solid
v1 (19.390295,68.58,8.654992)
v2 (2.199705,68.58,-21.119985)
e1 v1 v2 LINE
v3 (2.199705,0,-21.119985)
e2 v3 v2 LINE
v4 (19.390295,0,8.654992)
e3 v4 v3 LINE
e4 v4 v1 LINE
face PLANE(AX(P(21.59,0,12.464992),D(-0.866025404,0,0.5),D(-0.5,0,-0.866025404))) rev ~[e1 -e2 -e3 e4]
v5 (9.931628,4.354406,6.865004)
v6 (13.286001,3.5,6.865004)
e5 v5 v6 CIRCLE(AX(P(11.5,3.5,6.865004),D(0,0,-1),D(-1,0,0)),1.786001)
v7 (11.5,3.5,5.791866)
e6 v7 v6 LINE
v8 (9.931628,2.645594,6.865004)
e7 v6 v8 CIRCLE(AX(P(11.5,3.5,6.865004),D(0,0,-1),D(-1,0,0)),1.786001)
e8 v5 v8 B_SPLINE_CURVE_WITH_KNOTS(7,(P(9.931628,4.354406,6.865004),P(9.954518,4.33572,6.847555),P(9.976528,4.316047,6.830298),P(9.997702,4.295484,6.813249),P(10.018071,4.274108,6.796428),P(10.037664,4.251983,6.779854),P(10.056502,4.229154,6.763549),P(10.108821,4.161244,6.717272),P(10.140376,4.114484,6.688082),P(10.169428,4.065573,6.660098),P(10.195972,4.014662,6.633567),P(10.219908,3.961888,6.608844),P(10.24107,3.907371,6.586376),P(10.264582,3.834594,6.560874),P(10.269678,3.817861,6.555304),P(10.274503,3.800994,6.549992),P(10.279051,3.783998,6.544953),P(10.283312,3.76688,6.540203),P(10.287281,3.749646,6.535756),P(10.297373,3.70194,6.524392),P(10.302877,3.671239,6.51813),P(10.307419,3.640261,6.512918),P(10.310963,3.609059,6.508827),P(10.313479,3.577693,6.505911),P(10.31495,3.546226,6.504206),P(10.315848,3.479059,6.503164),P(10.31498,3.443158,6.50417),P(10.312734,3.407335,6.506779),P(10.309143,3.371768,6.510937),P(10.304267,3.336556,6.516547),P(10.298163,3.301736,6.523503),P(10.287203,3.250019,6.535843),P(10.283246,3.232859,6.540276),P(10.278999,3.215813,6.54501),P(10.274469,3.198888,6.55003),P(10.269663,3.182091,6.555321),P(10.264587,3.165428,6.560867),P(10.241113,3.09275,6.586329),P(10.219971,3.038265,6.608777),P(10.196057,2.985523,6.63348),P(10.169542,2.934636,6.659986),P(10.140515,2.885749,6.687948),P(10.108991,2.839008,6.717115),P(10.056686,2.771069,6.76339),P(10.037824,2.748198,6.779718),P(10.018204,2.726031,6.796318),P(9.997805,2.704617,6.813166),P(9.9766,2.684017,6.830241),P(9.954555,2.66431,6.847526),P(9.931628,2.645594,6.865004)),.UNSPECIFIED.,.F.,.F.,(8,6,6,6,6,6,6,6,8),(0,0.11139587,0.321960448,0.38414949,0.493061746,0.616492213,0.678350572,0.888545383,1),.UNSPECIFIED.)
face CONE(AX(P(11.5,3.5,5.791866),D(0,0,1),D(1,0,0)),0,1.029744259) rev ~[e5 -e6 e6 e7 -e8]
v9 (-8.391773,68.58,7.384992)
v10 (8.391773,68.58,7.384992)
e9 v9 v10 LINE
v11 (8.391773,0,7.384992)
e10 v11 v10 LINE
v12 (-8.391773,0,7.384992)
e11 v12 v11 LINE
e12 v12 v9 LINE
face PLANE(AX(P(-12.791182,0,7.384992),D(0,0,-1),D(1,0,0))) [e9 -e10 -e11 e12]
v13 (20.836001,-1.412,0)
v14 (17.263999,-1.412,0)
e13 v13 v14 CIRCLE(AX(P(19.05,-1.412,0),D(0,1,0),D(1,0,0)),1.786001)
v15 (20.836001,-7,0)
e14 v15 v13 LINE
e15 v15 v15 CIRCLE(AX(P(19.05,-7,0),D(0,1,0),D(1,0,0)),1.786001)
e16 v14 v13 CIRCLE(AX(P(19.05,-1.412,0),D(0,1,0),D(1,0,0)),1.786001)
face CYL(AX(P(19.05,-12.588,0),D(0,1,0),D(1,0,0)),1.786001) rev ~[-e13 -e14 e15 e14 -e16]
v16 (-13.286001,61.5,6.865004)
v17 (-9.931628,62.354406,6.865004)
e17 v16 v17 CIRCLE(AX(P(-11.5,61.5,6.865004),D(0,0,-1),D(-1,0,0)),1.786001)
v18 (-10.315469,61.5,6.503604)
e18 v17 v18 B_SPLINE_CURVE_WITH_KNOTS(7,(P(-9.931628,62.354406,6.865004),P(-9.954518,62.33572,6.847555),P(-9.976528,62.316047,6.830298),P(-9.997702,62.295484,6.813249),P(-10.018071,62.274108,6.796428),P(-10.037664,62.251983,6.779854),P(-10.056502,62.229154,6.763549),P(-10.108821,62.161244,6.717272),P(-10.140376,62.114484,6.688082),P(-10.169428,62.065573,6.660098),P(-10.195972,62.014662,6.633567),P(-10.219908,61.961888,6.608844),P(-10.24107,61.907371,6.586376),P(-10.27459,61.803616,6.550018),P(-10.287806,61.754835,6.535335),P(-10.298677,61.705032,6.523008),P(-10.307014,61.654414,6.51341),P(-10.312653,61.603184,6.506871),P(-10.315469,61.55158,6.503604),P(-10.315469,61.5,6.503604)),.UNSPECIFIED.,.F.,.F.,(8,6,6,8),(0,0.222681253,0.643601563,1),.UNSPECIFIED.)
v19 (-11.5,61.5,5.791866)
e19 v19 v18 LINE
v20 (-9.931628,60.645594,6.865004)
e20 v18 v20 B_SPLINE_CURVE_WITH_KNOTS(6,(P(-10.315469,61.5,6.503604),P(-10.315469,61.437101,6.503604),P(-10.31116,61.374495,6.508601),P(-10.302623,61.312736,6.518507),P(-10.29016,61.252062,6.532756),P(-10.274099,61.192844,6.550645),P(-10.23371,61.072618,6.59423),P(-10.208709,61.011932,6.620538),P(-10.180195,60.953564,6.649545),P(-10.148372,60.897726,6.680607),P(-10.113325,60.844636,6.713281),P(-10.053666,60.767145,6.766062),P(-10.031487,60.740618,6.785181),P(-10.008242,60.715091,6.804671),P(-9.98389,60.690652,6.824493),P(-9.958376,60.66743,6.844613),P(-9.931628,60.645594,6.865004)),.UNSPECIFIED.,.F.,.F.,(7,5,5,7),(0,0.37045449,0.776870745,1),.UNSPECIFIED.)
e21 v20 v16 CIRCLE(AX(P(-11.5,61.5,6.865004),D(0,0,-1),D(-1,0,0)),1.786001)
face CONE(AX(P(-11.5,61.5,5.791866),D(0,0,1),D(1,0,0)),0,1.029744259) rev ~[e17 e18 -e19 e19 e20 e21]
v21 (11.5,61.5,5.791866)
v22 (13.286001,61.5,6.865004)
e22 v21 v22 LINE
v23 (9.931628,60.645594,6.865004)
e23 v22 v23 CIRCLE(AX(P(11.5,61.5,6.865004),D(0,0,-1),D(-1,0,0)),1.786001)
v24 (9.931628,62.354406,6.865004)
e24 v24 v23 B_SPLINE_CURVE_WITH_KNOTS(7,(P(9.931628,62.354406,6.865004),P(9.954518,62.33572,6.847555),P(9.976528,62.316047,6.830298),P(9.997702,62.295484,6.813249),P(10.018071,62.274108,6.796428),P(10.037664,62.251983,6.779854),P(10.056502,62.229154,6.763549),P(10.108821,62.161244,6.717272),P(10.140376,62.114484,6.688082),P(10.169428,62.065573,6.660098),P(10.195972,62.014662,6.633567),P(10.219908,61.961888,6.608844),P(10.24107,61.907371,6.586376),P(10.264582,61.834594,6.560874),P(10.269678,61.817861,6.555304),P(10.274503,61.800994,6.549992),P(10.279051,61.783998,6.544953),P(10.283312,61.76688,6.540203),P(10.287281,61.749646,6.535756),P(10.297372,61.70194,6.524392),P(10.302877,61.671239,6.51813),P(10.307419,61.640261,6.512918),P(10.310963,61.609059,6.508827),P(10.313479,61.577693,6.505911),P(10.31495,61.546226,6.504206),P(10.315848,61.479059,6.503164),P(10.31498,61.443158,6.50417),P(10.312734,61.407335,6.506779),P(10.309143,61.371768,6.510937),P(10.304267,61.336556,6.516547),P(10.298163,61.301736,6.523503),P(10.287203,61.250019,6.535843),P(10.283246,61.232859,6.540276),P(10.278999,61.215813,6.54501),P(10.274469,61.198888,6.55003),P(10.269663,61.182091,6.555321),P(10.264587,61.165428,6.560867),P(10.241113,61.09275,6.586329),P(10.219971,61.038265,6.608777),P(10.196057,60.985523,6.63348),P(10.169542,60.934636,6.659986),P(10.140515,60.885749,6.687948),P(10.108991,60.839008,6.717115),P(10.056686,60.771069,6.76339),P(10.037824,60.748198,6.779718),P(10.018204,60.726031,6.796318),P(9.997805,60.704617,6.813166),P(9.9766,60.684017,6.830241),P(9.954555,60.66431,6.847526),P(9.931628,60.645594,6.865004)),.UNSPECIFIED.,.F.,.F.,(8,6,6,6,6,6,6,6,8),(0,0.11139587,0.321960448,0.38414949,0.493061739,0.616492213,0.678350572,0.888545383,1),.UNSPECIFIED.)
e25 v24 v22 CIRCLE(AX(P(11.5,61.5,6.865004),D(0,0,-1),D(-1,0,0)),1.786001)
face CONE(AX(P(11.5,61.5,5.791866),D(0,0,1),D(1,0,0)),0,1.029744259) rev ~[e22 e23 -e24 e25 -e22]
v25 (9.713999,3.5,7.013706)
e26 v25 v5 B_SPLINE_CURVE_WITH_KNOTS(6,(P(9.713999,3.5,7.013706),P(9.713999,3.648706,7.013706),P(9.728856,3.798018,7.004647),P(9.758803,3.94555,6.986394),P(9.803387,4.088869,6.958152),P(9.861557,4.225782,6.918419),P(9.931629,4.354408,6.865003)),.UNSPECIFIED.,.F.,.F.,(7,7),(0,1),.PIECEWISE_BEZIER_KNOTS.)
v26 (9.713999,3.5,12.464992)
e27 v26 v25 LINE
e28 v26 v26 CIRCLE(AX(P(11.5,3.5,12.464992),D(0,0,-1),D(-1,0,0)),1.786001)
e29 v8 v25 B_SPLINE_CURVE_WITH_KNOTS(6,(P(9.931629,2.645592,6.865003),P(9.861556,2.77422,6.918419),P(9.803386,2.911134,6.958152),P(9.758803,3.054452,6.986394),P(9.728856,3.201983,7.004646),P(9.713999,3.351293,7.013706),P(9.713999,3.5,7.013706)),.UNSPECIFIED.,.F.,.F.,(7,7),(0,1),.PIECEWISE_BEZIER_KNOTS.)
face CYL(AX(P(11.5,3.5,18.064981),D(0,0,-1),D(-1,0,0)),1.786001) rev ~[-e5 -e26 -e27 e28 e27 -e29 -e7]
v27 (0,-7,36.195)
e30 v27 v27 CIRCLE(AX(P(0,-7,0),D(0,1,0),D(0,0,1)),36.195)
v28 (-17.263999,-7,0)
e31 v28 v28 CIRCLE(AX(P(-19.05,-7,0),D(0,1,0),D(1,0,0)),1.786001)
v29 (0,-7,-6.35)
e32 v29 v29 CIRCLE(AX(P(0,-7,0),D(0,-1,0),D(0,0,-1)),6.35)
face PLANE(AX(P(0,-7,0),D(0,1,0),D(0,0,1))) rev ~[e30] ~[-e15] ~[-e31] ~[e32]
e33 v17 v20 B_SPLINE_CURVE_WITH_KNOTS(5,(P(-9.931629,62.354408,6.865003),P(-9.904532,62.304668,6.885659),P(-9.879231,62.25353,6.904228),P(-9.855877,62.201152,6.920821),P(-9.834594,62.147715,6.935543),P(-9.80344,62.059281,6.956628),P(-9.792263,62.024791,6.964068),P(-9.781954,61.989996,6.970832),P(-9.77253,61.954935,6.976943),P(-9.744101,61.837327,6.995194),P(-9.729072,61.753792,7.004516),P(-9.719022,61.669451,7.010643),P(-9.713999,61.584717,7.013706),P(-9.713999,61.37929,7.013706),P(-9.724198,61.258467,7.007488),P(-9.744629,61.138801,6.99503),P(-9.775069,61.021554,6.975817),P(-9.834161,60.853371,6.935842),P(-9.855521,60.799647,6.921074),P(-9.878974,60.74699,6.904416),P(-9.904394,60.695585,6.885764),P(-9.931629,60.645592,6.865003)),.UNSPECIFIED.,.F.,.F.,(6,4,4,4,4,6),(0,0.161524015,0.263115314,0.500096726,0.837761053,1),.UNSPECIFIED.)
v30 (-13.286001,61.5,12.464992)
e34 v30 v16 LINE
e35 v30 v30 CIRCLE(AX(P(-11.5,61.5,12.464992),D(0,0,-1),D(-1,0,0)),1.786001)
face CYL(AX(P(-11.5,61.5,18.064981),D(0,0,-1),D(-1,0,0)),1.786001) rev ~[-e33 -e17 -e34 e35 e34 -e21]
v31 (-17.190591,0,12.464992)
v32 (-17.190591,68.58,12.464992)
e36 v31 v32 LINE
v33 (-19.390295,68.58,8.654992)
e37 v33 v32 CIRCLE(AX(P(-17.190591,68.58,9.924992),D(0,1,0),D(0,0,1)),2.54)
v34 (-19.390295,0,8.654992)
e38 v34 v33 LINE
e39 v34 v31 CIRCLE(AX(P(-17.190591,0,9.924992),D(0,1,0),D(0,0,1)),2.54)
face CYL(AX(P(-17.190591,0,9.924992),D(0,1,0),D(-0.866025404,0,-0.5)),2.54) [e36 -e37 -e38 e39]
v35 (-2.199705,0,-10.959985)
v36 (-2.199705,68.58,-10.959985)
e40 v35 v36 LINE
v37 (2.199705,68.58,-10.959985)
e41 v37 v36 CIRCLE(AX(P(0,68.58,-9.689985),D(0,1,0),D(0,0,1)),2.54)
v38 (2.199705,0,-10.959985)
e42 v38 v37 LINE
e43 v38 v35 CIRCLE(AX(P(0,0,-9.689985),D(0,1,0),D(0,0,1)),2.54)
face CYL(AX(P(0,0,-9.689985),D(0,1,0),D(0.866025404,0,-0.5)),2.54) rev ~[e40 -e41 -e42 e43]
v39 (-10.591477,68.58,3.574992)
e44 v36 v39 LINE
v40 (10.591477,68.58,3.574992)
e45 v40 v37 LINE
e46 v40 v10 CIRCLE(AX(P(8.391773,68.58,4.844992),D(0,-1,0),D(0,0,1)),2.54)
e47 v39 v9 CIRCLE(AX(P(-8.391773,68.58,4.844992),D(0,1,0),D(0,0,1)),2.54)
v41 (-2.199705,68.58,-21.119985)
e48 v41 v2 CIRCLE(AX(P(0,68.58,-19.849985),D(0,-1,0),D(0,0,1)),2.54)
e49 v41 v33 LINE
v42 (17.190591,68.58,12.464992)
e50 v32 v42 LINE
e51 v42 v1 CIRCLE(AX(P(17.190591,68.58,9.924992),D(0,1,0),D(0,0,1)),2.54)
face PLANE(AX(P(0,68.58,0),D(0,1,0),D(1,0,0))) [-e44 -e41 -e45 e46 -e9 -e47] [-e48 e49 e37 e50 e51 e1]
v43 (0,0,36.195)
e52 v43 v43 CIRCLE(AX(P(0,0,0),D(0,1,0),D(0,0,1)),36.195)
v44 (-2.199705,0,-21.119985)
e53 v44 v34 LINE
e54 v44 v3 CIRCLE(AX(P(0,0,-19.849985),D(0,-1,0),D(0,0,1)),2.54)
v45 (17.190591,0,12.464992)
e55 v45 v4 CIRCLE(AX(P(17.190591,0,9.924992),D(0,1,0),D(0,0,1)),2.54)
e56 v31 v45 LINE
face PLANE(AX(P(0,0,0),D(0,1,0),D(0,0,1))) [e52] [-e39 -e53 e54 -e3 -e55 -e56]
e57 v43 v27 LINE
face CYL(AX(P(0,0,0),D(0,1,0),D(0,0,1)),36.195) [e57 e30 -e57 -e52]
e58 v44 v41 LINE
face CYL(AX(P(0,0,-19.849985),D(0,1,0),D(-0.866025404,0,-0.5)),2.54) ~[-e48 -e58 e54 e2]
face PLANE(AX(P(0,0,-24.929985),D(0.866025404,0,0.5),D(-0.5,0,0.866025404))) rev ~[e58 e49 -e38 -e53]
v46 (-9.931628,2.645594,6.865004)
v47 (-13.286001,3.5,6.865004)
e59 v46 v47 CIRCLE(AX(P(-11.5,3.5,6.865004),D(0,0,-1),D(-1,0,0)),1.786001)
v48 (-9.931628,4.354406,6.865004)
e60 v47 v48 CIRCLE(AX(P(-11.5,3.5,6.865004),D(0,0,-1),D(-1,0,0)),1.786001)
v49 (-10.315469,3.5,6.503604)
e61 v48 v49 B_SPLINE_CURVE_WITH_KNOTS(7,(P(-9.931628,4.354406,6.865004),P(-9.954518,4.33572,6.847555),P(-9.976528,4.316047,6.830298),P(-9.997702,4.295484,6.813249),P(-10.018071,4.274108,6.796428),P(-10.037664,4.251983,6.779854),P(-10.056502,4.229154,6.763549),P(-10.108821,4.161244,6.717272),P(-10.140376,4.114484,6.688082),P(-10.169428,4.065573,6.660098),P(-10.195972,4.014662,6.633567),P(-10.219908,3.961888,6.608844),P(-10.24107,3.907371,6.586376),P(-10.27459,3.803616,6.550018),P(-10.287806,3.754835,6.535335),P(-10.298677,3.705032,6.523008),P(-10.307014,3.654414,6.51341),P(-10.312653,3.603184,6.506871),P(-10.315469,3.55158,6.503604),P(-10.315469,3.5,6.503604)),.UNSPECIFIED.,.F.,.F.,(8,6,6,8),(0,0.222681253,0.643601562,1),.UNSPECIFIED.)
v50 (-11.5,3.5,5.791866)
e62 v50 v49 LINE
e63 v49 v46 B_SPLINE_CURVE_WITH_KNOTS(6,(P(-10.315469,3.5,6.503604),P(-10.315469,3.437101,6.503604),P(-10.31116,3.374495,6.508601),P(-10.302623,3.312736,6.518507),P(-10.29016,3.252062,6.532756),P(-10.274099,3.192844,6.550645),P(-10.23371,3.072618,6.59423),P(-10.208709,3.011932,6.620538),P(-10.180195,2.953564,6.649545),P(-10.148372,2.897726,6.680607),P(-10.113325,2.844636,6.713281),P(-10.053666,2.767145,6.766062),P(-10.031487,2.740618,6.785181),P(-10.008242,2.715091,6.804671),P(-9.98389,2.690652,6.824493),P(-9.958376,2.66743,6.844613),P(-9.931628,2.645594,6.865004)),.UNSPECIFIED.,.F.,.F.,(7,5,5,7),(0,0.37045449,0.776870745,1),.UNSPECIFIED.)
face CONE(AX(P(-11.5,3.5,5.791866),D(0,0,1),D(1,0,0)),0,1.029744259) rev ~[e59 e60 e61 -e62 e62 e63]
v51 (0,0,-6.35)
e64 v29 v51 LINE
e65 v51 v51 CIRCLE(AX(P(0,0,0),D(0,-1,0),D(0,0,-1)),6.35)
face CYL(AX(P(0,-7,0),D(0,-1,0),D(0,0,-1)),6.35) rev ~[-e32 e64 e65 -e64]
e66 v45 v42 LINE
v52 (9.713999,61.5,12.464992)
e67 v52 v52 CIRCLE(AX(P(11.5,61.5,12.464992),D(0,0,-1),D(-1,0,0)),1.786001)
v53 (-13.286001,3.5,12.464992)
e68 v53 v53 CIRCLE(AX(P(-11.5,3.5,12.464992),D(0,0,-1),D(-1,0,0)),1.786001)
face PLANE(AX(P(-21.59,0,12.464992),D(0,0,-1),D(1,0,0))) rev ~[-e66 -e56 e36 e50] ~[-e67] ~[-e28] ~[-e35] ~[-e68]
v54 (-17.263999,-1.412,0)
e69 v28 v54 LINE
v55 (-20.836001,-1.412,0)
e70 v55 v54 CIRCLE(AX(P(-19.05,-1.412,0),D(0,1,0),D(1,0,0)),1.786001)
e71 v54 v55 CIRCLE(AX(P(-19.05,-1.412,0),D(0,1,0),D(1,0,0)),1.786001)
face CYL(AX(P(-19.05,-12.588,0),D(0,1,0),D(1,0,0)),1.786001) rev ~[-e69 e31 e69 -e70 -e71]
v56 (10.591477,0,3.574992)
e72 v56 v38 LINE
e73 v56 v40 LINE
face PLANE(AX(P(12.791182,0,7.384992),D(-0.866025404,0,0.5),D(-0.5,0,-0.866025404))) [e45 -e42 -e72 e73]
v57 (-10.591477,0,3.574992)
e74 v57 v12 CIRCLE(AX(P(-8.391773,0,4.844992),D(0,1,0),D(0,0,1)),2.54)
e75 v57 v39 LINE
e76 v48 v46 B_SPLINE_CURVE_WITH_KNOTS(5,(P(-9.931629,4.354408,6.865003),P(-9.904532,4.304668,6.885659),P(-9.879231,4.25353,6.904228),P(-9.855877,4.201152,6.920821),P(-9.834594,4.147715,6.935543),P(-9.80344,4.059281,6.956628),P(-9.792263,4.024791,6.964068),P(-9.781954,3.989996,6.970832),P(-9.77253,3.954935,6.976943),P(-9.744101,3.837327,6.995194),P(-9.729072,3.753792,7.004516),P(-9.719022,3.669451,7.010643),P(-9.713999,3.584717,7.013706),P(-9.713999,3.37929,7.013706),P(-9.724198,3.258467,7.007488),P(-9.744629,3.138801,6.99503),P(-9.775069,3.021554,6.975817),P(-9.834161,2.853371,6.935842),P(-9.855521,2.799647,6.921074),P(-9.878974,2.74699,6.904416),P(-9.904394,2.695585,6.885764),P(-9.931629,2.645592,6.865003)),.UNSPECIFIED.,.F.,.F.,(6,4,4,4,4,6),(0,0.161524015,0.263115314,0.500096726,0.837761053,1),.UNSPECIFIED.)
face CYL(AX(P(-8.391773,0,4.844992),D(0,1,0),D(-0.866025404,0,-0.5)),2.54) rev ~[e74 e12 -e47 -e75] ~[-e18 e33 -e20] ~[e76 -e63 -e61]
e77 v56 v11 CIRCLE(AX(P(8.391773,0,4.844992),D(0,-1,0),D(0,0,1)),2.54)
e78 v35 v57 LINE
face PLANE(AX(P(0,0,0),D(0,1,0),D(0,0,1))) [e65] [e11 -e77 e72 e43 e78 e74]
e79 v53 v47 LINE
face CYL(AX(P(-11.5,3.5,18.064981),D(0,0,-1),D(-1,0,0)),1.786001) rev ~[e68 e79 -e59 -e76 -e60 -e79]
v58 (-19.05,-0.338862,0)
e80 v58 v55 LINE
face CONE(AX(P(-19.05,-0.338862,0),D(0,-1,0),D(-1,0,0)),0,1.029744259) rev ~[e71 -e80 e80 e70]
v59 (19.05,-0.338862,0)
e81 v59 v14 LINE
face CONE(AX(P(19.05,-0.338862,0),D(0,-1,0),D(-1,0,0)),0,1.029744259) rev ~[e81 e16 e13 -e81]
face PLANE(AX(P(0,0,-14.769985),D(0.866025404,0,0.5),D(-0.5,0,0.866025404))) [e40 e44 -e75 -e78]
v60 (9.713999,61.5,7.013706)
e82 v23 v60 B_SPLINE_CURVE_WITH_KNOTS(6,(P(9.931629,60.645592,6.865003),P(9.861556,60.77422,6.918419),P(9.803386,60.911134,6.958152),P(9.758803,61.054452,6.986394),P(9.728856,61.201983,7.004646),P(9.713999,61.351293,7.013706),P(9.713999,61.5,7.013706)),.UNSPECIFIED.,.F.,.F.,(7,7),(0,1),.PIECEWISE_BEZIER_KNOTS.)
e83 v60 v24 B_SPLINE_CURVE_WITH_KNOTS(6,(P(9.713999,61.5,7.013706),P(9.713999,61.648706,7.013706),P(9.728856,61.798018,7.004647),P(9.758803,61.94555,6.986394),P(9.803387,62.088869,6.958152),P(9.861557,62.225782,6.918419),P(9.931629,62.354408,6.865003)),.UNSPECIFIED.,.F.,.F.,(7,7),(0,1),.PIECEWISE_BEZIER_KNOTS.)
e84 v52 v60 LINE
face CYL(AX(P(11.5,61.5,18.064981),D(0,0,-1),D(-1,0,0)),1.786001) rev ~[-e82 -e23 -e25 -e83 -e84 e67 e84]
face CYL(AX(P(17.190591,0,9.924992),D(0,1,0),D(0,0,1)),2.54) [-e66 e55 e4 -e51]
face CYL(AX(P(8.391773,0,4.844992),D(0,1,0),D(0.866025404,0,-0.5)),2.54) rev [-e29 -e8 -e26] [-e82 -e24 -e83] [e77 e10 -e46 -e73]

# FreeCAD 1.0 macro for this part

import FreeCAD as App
import Part
import Sketcher

V = App.Vector
Q = App.Units.Quantity


def edges_at(feature, points):
    """Names of the edges that pass closest to the given points."""
    edges = feature.Shape.Edges
    near = lambda p: min(range(len(edges)), key=lambda i: edges[i].distToShape(Part.Vertex(*p))[0])
    return sorted({f"Edge{near(p) + 1}" for p in points})

doc = App.newDocument("Part")
body = doc.addObject("PartDesign::Body", "Body")

# Sketch on XZ plane
sketch1 = body.newObject("Sketcher::SketchObject", "Sketch")
sketch1.AttachmentSupport = (doc.getObject("XZ_Plane"), [""])
sketch1.MapMode = "FlatFace"
sketch1.addGeometry(Part.Circle(V(0, 0, 0), V(0, 0, 1), 36), False)
sketch1.addConstraint([
    Sketcher.Constraint("Coincident", 0, 3, -1, 1),
    Sketcher.Constraint("Diameter", 0, Q("2.85 in")),
])
pad1 = body.newObject("PartDesign::Pad", "Pad")
pad1.Profile = sketch1
pad1.Length = 7

# Sketch on XZ plane
sketch2 = body.newObject("Sketcher::SketchObject", "Sketch001")
sketch2.AttachmentSupport = (doc.getObject("XZ_Plane"), [""])
sketch2.MapMode = "FlatFace"
sketch2.AttachmentOffset = App.Placement(V(0, 0, 7), App.Rotation())
sketch2.addGeometry(Part.Circle(V(0, 0, 0), V(0, 0, 1), 6), False)
sketch2.addConstraint([
    Sketcher.Constraint("Coincident", 0, 3, -1, 1),
    Sketcher.Constraint("Diameter", 0, Q("0.5 in")),
])
pocket1 = body.newObject("PartDesign::Pocket", "Pocket")
pocket1.Profile = sketch2
pocket1.Type = "UpToFirst"

# Sketch on XZ plane
sketch3 = body.newObject("Sketcher::SketchObject", "Sketch002")
sketch3.AttachmentSupport = (doc.getObject("XZ_Plane"), [""])
sketch3.MapMode = "FlatFace"
sketch3.addGeometry([
    Part.LineSegment(V(0, -25, 0), V(-22, 12, 0)),  # 0
    Part.LineSegment(V(-22, 12, 0), V(22, 12, 0)),  # 1
    Part.LineSegment(V(22, 12, 0), V(0, -25, 0)),  # 2
    Part.LineSegment(V(0, -15, 0), V(13, 7, 0)),  # 3
    Part.LineSegment(V(13, 7, 0), V(-13, 7, 0)),  # 4
    Part.LineSegment(V(-13, 7, 0), V(0, -15, 0)),  # 5
], False)
sketch3.addConstraint([
    Sketcher.Constraint("Coincident", 0, 2, 1, 1),
    Sketcher.Constraint("Coincident", 1, 2, 2, 1),
    Sketcher.Constraint("Coincident", 2, 2, 0, 1),
    Sketcher.Constraint("Coincident", 3, 2, 4, 1),
    Sketcher.Constraint("Coincident", 4, 2, 5, 1),
    Sketcher.Constraint("Coincident", 5, 2, 3, 1),
    Sketcher.Constraint("Horizontal", 1),
    Sketcher.Constraint("Horizontal", 4),
    Sketcher.Constraint("PointOnObject", 2, 2, -2),
    Sketcher.Constraint("PointOnObject", 5, 2, -2),
    Sketcher.Constraint("Parallel", 2, 3),
    Sketcher.Constraint("Parallel", 0, 5),
    Sketcher.Constraint("Equal", 0, 2),
    Sketcher.Constraint("DistanceX", 1, 1, 1, 2, Q("1.7 in")),
    Sketcher.Constraint("Angle", 0, Q("120 deg")),
    Sketcher.Constraint("DistanceY", 3, 2, 1, 2, Q("0.2 in")),
    Sketcher.Constraint("DistanceY", 2, 2, 5, 2, Q("0.4 in")),
    Sketcher.Constraint("DistanceY", -1, 1, 0, 2, 12.464992),
])
pad2 = body.newObject("PartDesign::Pad", "Pad001")
pad2.Profile = sketch3
pad2.Length = Q("2.7 in")
pad2.Reversed = True
doc.recompute()

fillet = body.newObject("PartDesign::Fillet", "Fillet")
fillet.Base = (pad2, edges_at(pad2, [
    (21.59, 34.29, 12.465),
    (0, 34.29, -24.93),
    (-21.59, 34.29, 12.465),
    (12.791, 34.29, 7.385),
    (0, 34.29, -14.77),
    (-12.791, 34.29, 7.385),
]))
fillet.Radius = Q("0.1 in")

# Sketch on XY plane
sketch4 = body.newObject("Sketcher::SketchObject", "Sketch003")
sketch4.AttachmentSupport = (doc.getObject("XY_Plane"), [""])
sketch4.MapMode = "FlatFace"
sketch4.AttachmentOffset = App.Placement(V(0, 0, 12.464992), App.Rotation())
sketch4.addGeometry([
    Part.Circle(V(-11.5, 61.5, 0), V(0, 0, 1), 1.8),
    Part.Circle(V(11.5, 61.5, 0), V(0, 0, 1), 1.8),
    Part.Circle(V(-11.5, 3.5, 0), V(0, 0, 1), 1.8),
    Part.Circle(V(11.5, 3.5, 0), V(0, 0, 1), 1.8),
], False)
sketch4.addConstraint([
    Sketcher.Constraint("Equal", 0, 1),
    Sketcher.Constraint("Equal", 1, 2),
    Sketcher.Constraint("Equal", 2, 3),
    Sketcher.Constraint("Symmetric", 0, 3, 1, 3, -2),
    Sketcher.Constraint("Symmetric", 2, 3, 3, 3, -2),
    Sketcher.Constraint("Vertical", 0, 3, 2, 3),
    Sketcher.Constraint("Diameter", 0, 3.572002),
    Sketcher.Constraint("DistanceX", 0, 3, -1, 1, 11.5),
    Sketcher.Constraint("DistanceY", -1, 1, 0, 3, 61.5),
    Sketcher.Constraint("DistanceY", -1, 1, 2, 3, 3.5),
])
doc.recompute()
hole = body.newObject("PartDesign::Hole", "Hole")
hole.Profile = sketch4
hole.ThreadType = "None"
hole.Diameter = 3.572002
hole.DepthType = "Dimension"
hole.Depth = 5.599989
hole.DrillPoint = "Angled"
hole.DrillPointAngle = 118

# Sketch on XZ plane
sketch5 = body.newObject("Sketcher::SketchObject", "Sketch004")
sketch5.AttachmentSupport = (doc.getObject("XZ_Plane"), [""])
sketch5.MapMode = "FlatFace"
sketch5.AttachmentOffset = App.Placement(V(0, 0, 7), App.Rotation())
sketch5.addGeometry([
    Part.Circle(V(19.1, 0, 0), V(0, 0, 1), 1.8),
    Part.Circle(V(-19.1, 0, 0), V(0, 0, 1), 1.8),
], False)
sketch5.addConstraint([
    Sketcher.Constraint("Equal", 0, 1),
    Sketcher.Constraint("Symmetric", 0, 3, 1, 3, -1, 1),
    Sketcher.Constraint("PointOnObject", 0, 3, -1),
    Sketcher.Constraint("DistanceX", 1, 3, 0, 3, Q("1.5 in")),
    Sketcher.Constraint("Diameter", 0, 3.572002),
])
doc.recompute()
hole2 = body.newObject("PartDesign::Hole", "Hole001")
hole2.Profile = sketch5
hole2.ThreadType = "None"
hole2.Diameter = 3.572002
hole2.DepthType = "Dimension"
hole2.Depth = Q("0.22 in")
hole2.DrillPoint = "Angled"
hole2.DrillPointAngle = 118

doc.recompute()
